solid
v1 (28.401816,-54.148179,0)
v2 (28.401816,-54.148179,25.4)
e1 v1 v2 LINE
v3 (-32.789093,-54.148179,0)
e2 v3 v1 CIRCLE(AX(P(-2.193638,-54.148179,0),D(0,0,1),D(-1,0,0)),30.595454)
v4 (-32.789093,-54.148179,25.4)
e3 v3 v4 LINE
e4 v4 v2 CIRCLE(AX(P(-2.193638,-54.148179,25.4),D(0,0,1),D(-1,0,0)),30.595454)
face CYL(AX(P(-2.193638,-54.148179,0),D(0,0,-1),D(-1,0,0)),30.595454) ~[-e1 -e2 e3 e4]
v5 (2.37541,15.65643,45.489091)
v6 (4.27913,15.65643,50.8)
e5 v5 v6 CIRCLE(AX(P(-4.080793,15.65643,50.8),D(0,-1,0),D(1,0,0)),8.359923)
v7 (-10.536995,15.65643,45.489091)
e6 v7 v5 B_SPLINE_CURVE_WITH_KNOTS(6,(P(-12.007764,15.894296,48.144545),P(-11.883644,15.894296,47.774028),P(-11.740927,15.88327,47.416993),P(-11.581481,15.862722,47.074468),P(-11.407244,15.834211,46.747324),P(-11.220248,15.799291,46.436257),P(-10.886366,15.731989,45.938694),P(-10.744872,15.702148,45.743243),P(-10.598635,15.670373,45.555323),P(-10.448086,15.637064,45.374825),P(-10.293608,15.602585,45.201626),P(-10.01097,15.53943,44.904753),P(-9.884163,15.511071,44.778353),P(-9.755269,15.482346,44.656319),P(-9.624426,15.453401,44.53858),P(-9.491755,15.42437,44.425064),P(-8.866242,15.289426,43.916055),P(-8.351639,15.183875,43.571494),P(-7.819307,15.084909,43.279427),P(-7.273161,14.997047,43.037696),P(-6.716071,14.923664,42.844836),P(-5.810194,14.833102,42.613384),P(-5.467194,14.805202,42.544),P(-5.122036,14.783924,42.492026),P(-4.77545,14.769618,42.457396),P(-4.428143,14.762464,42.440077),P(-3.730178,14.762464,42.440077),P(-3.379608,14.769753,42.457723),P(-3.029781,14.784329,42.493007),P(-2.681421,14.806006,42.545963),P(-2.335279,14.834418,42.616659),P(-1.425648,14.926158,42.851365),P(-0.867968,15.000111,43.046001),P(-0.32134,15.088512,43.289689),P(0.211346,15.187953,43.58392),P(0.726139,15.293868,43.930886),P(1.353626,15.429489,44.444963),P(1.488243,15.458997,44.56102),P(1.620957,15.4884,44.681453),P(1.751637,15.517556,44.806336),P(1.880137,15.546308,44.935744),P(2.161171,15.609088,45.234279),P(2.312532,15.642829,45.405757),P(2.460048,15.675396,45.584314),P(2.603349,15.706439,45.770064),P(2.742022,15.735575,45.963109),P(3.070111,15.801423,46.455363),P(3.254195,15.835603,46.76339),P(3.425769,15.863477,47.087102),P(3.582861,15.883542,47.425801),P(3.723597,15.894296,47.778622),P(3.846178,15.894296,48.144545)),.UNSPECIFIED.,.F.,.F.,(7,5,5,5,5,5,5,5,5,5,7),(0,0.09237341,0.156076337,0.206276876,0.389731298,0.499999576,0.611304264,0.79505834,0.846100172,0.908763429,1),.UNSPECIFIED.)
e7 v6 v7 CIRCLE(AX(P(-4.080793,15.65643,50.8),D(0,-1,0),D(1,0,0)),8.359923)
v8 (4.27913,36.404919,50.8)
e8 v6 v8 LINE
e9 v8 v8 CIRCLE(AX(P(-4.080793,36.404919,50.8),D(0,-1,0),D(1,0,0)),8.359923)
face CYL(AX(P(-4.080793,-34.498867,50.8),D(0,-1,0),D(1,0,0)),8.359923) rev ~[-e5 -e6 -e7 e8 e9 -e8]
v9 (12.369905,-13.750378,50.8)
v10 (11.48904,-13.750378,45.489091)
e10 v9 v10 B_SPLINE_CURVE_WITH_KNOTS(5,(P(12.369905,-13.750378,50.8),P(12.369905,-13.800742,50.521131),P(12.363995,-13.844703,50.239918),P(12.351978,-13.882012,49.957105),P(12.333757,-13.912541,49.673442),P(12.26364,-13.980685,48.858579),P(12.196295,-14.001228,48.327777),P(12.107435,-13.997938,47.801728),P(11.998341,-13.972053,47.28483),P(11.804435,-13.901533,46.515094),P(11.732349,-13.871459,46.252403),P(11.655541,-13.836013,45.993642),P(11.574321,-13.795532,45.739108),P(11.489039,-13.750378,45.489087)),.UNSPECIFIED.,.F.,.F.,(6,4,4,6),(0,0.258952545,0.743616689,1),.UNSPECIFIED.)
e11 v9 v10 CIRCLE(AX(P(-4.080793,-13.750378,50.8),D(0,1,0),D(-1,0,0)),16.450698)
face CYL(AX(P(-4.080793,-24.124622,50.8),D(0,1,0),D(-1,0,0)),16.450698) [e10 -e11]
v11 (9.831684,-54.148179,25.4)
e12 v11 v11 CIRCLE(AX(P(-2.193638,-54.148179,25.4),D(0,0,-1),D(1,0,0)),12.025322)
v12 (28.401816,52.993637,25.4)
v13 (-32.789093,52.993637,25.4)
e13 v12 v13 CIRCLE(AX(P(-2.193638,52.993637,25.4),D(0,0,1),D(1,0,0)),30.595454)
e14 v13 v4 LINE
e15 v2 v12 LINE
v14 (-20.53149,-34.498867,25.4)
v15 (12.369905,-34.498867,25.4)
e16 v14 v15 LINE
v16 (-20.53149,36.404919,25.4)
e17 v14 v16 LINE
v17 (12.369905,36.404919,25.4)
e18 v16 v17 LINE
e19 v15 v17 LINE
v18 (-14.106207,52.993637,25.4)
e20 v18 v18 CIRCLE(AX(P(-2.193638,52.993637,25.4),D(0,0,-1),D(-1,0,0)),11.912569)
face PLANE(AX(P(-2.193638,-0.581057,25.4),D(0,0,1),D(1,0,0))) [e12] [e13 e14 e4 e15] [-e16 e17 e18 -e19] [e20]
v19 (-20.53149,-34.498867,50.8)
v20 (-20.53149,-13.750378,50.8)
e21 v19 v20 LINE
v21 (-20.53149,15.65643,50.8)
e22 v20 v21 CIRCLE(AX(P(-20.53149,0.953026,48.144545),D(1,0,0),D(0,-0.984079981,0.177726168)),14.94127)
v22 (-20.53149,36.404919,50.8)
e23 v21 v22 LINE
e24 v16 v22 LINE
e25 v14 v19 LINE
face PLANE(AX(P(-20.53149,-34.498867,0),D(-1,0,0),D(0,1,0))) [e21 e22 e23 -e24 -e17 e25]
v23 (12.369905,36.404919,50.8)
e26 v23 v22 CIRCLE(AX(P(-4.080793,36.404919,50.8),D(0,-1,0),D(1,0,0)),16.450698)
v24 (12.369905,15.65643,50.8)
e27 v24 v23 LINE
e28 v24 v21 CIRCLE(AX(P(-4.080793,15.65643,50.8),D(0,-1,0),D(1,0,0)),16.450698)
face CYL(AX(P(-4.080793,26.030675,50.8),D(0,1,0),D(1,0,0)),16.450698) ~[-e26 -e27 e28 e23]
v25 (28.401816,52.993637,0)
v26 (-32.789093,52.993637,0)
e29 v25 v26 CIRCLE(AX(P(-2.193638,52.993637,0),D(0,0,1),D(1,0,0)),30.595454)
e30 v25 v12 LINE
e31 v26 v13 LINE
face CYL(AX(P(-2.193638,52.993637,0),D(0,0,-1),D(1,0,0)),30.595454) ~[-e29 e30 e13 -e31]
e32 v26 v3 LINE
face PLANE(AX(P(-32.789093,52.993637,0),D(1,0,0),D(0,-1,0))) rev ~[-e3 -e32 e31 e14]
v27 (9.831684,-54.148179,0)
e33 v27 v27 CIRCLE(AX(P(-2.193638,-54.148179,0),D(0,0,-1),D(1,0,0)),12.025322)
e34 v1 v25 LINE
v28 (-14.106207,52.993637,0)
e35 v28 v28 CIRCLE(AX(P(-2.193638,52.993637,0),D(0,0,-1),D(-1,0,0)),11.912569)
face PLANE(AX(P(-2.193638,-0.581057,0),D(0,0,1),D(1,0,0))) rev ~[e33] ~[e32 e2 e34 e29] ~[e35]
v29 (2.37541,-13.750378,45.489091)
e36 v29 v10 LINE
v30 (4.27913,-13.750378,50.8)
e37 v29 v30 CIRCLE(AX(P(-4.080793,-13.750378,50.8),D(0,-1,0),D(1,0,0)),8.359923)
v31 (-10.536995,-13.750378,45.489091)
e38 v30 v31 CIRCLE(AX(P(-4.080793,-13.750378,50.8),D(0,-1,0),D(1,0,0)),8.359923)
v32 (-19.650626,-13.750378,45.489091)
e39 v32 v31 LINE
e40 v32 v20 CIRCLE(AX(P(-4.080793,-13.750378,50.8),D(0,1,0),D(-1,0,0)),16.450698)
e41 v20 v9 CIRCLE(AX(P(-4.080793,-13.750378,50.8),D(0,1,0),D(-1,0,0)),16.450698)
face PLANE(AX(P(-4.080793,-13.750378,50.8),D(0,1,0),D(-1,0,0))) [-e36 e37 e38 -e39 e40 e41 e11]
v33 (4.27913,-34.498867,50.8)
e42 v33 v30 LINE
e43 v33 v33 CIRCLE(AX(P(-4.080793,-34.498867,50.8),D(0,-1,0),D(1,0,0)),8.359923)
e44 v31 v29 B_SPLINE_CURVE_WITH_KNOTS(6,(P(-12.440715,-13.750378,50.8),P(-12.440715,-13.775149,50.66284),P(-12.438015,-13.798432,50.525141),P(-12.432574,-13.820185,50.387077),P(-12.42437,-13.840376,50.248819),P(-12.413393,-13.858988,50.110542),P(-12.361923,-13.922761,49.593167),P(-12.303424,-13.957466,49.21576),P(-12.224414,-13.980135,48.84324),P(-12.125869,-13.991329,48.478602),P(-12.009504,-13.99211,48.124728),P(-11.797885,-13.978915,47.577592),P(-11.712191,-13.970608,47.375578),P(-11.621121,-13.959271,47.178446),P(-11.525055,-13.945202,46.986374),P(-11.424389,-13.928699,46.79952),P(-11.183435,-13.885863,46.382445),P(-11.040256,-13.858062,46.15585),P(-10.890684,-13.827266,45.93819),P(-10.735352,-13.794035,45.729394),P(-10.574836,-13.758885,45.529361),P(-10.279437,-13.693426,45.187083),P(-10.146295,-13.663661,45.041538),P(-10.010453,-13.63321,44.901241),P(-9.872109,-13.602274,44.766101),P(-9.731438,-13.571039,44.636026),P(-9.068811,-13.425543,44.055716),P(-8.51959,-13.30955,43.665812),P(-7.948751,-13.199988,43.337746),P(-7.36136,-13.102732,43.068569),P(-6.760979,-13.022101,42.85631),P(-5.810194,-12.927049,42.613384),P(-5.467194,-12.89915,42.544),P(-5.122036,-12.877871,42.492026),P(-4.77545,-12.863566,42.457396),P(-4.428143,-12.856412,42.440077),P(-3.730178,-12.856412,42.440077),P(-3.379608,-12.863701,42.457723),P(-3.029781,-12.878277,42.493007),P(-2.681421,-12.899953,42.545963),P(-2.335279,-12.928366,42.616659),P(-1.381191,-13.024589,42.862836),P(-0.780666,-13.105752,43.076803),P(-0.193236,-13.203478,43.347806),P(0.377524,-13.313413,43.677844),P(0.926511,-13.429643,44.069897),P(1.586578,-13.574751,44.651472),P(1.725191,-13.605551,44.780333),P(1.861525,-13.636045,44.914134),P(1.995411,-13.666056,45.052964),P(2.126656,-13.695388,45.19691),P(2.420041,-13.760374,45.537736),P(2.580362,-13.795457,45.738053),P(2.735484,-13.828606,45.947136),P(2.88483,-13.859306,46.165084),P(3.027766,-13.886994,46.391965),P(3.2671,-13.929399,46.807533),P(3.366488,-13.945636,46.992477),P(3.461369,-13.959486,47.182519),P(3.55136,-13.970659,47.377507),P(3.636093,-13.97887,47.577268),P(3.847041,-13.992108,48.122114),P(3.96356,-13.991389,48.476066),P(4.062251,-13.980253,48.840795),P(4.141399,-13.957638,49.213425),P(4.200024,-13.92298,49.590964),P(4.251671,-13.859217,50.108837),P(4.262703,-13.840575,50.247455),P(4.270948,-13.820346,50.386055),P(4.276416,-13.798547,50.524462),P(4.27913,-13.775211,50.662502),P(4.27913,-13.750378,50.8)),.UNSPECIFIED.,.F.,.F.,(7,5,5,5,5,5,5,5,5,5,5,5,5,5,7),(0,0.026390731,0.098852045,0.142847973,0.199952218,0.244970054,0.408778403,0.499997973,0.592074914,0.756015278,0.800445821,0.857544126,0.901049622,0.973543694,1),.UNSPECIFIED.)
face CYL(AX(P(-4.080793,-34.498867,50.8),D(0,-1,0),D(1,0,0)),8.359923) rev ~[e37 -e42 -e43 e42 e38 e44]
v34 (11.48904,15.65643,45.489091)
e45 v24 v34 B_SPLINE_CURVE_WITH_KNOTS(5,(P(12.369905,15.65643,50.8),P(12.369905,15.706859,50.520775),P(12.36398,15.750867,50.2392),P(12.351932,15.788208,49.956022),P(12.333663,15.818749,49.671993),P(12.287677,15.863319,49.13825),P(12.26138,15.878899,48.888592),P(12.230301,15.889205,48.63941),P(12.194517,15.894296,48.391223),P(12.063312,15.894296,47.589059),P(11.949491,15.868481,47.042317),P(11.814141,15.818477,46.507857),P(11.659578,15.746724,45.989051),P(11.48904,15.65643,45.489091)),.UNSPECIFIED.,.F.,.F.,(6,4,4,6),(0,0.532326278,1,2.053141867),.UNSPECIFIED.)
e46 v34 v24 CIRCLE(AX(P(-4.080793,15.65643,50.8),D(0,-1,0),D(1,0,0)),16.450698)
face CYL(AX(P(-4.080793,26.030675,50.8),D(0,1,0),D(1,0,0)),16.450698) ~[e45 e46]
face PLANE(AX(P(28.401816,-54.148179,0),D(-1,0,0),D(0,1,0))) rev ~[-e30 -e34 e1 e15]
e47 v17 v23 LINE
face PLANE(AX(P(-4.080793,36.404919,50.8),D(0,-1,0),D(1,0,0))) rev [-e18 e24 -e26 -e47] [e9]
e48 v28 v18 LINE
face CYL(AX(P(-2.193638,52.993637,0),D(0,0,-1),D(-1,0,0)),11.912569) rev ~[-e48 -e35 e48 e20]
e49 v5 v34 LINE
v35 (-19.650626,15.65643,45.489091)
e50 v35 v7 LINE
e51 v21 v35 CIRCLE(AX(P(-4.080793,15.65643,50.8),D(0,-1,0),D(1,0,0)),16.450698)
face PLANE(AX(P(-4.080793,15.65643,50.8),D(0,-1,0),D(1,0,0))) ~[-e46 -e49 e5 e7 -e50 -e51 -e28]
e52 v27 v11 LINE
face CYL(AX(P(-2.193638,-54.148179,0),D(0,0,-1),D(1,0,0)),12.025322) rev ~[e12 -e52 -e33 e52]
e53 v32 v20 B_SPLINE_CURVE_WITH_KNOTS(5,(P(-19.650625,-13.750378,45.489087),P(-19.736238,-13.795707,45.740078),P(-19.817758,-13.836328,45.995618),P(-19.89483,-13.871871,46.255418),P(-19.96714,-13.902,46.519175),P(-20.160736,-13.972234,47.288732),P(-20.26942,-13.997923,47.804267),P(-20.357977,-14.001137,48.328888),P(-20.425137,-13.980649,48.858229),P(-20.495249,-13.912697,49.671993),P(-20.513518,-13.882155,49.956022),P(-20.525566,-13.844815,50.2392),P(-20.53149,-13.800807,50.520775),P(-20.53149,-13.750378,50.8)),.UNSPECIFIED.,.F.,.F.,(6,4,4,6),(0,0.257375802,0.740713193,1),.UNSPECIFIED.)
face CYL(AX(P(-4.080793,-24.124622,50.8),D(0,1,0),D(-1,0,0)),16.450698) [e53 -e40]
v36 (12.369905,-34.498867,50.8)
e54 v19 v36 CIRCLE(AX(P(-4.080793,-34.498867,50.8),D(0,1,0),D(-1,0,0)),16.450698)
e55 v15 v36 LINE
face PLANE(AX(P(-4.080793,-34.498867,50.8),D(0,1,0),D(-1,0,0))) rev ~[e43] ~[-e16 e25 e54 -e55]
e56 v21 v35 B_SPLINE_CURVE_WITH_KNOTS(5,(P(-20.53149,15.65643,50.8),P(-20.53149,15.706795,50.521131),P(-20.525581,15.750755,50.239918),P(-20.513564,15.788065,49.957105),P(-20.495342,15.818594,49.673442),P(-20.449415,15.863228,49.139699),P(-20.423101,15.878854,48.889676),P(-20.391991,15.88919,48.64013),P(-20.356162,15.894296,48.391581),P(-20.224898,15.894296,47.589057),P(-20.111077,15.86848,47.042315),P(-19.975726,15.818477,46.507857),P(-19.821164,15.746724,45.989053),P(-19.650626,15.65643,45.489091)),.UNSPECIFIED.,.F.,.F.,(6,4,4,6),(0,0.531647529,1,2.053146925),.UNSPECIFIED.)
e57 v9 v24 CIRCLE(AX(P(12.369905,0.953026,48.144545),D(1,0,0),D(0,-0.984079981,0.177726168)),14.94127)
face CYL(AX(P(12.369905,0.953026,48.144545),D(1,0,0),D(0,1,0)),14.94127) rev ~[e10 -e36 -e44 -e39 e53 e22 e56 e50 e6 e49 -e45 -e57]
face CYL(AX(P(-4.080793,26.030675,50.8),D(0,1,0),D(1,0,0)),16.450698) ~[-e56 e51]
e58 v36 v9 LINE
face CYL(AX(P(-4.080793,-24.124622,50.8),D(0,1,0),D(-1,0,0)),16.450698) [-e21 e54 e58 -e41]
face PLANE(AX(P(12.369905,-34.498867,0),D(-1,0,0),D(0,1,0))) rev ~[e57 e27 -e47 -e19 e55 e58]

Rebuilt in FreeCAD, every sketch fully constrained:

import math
import FreeCAD as App
import Part
import Sketcher
Q = App.Units.Quantity


def add_polygon(sketch, points):
    """Adds a closed chain of lines whose ends are joined by coincident constraints."""
    first, n = sketch.GeometryCount, len(points)
    for a, b in zip(points, points[1:] + points[:1]):
        sketch.addGeometry(Part.LineSegment(App.Vector(*a, 0), App.Vector(*b, 0)), False)
    for i in range(n):
        sketch.addConstraint(Sketcher.Constraint("Coincident", first + i, 2, first + (i + 1) % n, 1))

doc = App.newDocument("Part")
body = doc.addObject("PartDesign::Body", "Body")

# Sketch on XY plane
sketch1 = doc.addObject("Sketcher::SketchObject", "Sketch")
body.addObject(sketch1)
sketch1.AttachmentSupport = (doc.XY_Plane, [""])
sketch1.MapMode = "FlatFace"
sketch1.addGeometry(Part.LineSegment(App.Vector(28, -54, 0), App.Vector(28, 53, 0)), False)  # 0
sketch1.addGeometry(Part.ArcOfCircle(Part.Circle(App.Vector(-2, 53, 0), App.Vector(0, 0, 1), 31), math.radians(0), math.radians(180)), False)  # 1
sketch1.addGeometry(Part.LineSegment(App.Vector(-33, 53, 0), App.Vector(-33, -54, 0)), False)  # 2
sketch1.addGeometry(Part.ArcOfCircle(Part.Circle(App.Vector(-2, -54, 0), App.Vector(0, 0, 1), 31), math.radians(180), math.radians(360)), False)  # 3
sketch1.addGeometry(Part.Circle(App.Vector(-2, -54, 0), App.Vector(0, 0, 1), 12), False)  # 4
sketch1.addGeometry(Part.Circle(App.Vector(-2, 53, 0), App.Vector(0, 0, 1), 12), False)  # 5
add_polygon(sketch1, [(12, -34), (-21, -34), (-21, 36), (12, 36)])  # lines 6-9
sketch1.addConstraint(Sketcher.Constraint("Tangent", 0, 2, 1, 1))
sketch1.addConstraint(Sketcher.Constraint("Tangent", 1, 2, 2, 1))
sketch1.addConstraint(Sketcher.Constraint("Tangent", 2, 2, 3, 1))
sketch1.addConstraint(Sketcher.Constraint("Tangent", 3, 2, 0, 1))
sketch1.addConstraint(Sketcher.Constraint("Vertical", 0))
sketch1.addConstraint(Sketcher.Constraint("Vertical", 2))
sketch1.addConstraint(Sketcher.Constraint("Horizontal", 6))
sketch1.addConstraint(Sketcher.Constraint("Vertical", 7))
sketch1.addConstraint(Sketcher.Constraint("Horizontal", 8))
sketch1.addConstraint(Sketcher.Constraint("Vertical", 9))
sketch1.addConstraint(Sketcher.Constraint("Coincident", 4, 3, 3, 3))
sketch1.addConstraint(Sketcher.Constraint("Coincident", 5, 3, 1, 3))
sketch1.addConstraint(Sketcher.Constraint("Diameter", 5, 23.825139))
sketch1.addConstraint(Sketcher.Constraint("Diameter", 4, 24.050643))
sketch1.addConstraint(Sketcher.Constraint("Radius", 1, 30.595454))
sketch1.addConstraint(Sketcher.Constraint("DistanceX", 6, 2, 6, 1, 32.901395))
sketch1.addConstraint(Sketcher.Constraint("DistanceY", 0, 1, 0, 2, 107.141815))
sketch1.addConstraint(Sketcher.Constraint("DistanceY", 7, 1, 7, 2, 70.903786))
sketch1.addConstraint(Sketcher.Constraint("DistanceX", 1, 3, -1, 1, 2.193638))
sketch1.addConstraint(Sketcher.Constraint("DistanceY", 3, 3, -1, 1, 54.148179))
sketch1.addConstraint(Sketcher.Constraint("DistanceX", 6, 2, -1, 1, 20.53149))
sketch1.addConstraint(Sketcher.Constraint("DistanceY", -1, 1, 7, 2, 36.404919))
pad1 = doc.addObject("PartDesign::Pad", "Pad")
body.addObject(pad1)
pad1.Profile = sketch1
pad1.Length = Q("1 in")

# Sketch on XY plane
sketch2 = doc.addObject("Sketcher::SketchObject", "Sketch001")
body.addObject(sketch2)
sketch2.AttachmentSupport = (doc.XY_Plane, [""])
sketch2.MapMode = "FlatFace"
add_polygon(sketch2, [(-21, 36), (-21, -34), (12, -34), (12, 36)])  # lines 0-3
sketch2.addConstraint(Sketcher.Constraint("Vertical", 0))
sketch2.addConstraint(Sketcher.Constraint("Horizontal", 1))
sketch2.addConstraint(Sketcher.Constraint("Vertical", 2))
sketch2.addConstraint(Sketcher.Constraint("Horizontal", 3))
sketch2.addConstraint(Sketcher.Constraint("DistanceX", 1, 1, 1, 2, 32.901395))
sketch2.addConstraint(Sketcher.Constraint("DistanceY", 0, 2, 0, 1, 70.903786))
sketch2.addConstraint(Sketcher.Constraint("DistanceX", 0, 2, -1, 1, 20.53149))
sketch2.addConstraint(Sketcher.Constraint("DistanceY", -1, 1, 2, 2, 36.404919))
pad2 = doc.addObject("PartDesign::Pad", "Pad001")
body.addObject(pad2)
pad2.Profile = sketch2
pad2.Length = Q("2 in")

# Sketch on YZ plane
sketch3 = doc.addObject("Sketcher::SketchObject", "Sketch002")
body.addObject(sketch3)
sketch3.AttachmentSupport = (doc.YZ_Plane, [""])
sketch3.MapMode = "FlatFace"
sketch3.AttachmentOffset = App.Placement(App.Vector(0, 0, 12.369905), App.Rotation())
sketch3.addGeometry(Part.Circle(App.Vector(1, 48, 0), App.Vector(0, 0, 1), 15), False)
sketch3.addConstraint(Sketcher.Constraint("Diameter", 0, 29.882539))
sketch3.addConstraint(Sketcher.Constraint("DistanceX", -1, 1, 0, 3, 0.953026))
sketch3.addConstraint(Sketcher.Constraint("DistanceY", -1, 1, 0, 3, 48.144545))
pocket1 = doc.addObject("PartDesign::Pocket", "Pocket")
body.addObject(pocket1)
pocket1.Profile = sketch3
pocket1.Length = Q("3 in")

# Sketch on XY plane
sketch4 = doc.addObject("Sketcher::SketchObject", "Sketch003")
body.addObject(sketch4)
sketch4.AttachmentSupport = (doc.XY_Plane, [""])
sketch4.MapMode = "FlatFace"
sketch4.AttachmentOffset = App.Placement(App.Vector(0, 0, 2 * 25.4), App.Rotation())
add_polygon(sketch4, [(-4, 36), (-4, 16), (12, 16), (12, 36)])  # lines 0-3
sketch4.addGeometry(Part.LineSegment(App.Vector(-4, 36, 0), App.Vector(-4, 16, 0)), True)  # axis
sketch4.addConstraint(Sketcher.Constraint("Vertical", 0))
sketch4.addConstraint(Sketcher.Constraint("Horizontal", 1))
sketch4.addConstraint(Sketcher.Constraint("Vertical", 2))
sketch4.addConstraint(Sketcher.Constraint("Horizontal", 3))
sketch4.addConstraint(Sketcher.Constraint("Vertical", 4))
sketch4.addConstraint(Sketcher.Constraint("Coincident", 4, 1, 3, 2))
sketch4.addConstraint(Sketcher.Constraint("Horizontal", 1, 2, 4, 2))
sketch4.addConstraint(Sketcher.Constraint("DistanceY", 0, 2, 0, 1, 20.748488))
sketch4.addConstraint(Sketcher.Constraint("DistanceX", 1, 1, 1, 2, 16.450698))
sketch4.addConstraint(Sketcher.Constraint("DistanceY", -1, 1, 0, 2, 15.65643))
sketch4.addConstraint(Sketcher.Constraint("DistanceX", 0, 2, -1, 1, 4.080793))
revolution = doc.addObject("PartDesign::Revolution", "Revolution")
body.addObject(revolution)
revolution.Profile = sketch4
revolution.ReferenceAxis = (sketch4, ["Axis0"])
revolution.Angle = 360

# Sketch on XY plane
sketch5 = doc.addObject("Sketcher::SketchObject", "Sketch004")
body.addObject(sketch5)
sketch5.AttachmentSupport = (doc.XY_Plane, [""])
sketch5.MapMode = "FlatFace"
sketch5.AttachmentOffset = App.Placement(App.Vector(0, 0, 2 * 25.4), App.Rotation())
add_polygon(sketch5, [(-21, -14), (-21, -34), (-4, -34), (-4, -14)])  # lines 0-3
sketch5.addGeometry(Part.LineSegment(App.Vector(-4, -34, 0), App.Vector(-4, -14, 0)), True)  # axis
sketch5.addConstraint(Sketcher.Constraint("Vertical", 0))
sketch5.addConstraint(Sketcher.Constraint("Horizontal", 1))
sketch5.addConstraint(Sketcher.Constraint("Vertical", 2))
sketch5.addConstraint(Sketcher.Constraint("Horizontal", 3))
sketch5.addConstraint(Sketcher.Constraint("Vertical", 4))
sketch5.addConstraint(Sketcher.Constraint("Coincident", 4, 1, 1, 2))
sketch5.addConstraint(Sketcher.Constraint("Horizontal", 3, 2, 4, 2))
sketch5.addConstraint(Sketcher.Constraint("DistanceY", 0, 2, 0, 1, 20.748488))
sketch5.addConstraint(Sketcher.Constraint("DistanceX", 1, 1, 1, 2, 16.450698))
sketch5.addConstraint(Sketcher.Constraint("DistanceX", 0, 2, -1, 1, 20.53149))
sketch5.addConstraint(Sketcher.Constraint("DistanceY", 2, 2, -1, 1, 13.750378))
revolution2 = doc.addObject("PartDesign::Revolution", "Revolution001")
body.addObject(revolution2)
revolution2.Profile = sketch5
revolution2.ReferenceAxis = (sketch5, ["Axis0"])
revolution2.Angle = 360

# Sketch on XZ plane
sketch6 = doc.addObject("Sketcher::SketchObject", "Sketch005")
body.addObject(sketch6)
sketch6.AttachmentSupport = (doc.XZ_Plane, [""])
sketch6.MapMode = "FlatFace"
sketch6.AttachmentOffset = App.Placement(App.Vector(0, 0, 34.498867), App.Rotation())
sketch6.addGeometry(Part.Circle(App.Vector(-4, 51, 0), App.Vector(0, 0, 1), 8), False)
sketch6.addConstraint(Sketcher.Constraint("DistanceY", -1, 1, 0, 3, Q("2 in")))
sketch6.addConstraint(Sketcher.Constraint("Diameter", 0, 16.719845))
sketch6.addConstraint(Sketcher.Constraint("DistanceX", 0, 3, -1, 1, 4.080793))
pocket2 = doc.addObject("PartDesign::Pocket", "Pocket001")
body.addObject(pocket2)
pocket2.Profile = sketch6
pocket2.Length = Q("20 in")

doc.recompute()
